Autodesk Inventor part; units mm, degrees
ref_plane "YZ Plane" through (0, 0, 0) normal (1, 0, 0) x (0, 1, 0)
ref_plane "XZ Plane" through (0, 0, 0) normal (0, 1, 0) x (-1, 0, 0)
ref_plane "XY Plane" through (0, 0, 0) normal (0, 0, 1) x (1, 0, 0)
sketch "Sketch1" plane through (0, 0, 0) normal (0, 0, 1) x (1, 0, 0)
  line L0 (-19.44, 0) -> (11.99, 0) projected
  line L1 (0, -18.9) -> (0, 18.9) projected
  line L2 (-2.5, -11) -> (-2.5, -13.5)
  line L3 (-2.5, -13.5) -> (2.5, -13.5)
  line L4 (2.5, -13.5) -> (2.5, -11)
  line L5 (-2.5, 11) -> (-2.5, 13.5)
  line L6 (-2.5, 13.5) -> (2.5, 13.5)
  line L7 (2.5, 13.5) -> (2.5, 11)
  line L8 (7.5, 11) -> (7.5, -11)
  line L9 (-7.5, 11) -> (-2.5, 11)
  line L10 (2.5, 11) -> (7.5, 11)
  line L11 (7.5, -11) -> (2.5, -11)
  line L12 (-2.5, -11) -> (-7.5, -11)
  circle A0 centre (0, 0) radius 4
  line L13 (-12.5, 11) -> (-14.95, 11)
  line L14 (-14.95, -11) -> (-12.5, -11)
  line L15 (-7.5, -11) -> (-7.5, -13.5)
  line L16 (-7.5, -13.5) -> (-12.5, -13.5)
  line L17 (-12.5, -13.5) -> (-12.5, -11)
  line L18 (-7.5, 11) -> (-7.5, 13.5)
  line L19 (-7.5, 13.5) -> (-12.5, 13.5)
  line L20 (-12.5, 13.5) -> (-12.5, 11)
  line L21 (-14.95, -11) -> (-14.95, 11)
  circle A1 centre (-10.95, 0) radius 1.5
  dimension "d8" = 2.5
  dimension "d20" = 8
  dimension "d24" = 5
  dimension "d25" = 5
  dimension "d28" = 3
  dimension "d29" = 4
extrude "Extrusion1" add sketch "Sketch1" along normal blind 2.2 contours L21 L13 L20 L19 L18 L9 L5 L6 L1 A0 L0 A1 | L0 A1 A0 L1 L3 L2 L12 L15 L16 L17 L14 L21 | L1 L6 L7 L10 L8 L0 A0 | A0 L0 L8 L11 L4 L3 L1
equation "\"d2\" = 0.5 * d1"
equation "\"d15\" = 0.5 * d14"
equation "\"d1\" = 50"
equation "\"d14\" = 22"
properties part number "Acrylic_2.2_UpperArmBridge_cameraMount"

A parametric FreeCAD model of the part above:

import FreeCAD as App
import Part
import Sketcher

V = App.Vector


def add_polygon(sketch, points):
    """Adds a closed chain of lines whose ends are joined by coincident constraints."""
    first, n = sketch.GeometryCount, len(points)
    for a, b in zip(points, points[1:] + points[:1]):
        sketch.addGeometry(Part.LineSegment(App.Vector(*a, 0), App.Vector(*b, 0)), False)
    for i in range(n):
        sketch.addConstraint(Sketcher.Constraint("Coincident", first + i, 2, first + (i + 1) % n, 1))

doc = App.newDocument("Part")
params = doc.addObject("Spreadsheet::Sheet", "Params")
for row, (alias, value) in enumerate([
    ("sketch1_diameter", "8 mm"),
    ("sketch1_diameter2", "3 mm"),
    ("sketch1_width", "5 mm"),
    ("sketch1_height", "2.5 mm"),
    ("sketch1_height2", "22 mm"),
    ("pad1_length", "2.2 mm"),
], start=1):
    params.set(f"A{row}", alias)
    params.set(f"B{row}", "=" + value)
    params.setAlias(f"B{row}", alias)

body = doc.addObject("PartDesign::Body", "Body")

# Sketch on XY plane
sketch1 = body.newObject("Sketcher::SketchObject", "Sketch")
sketch1.AttachmentSupport = (doc.getObject("XY_Plane"), [""])
sketch1.MapMode = "FlatFace"
add_polygon(sketch1, [(-14.9, 11), (-14.9, -11), (-12.5, -11), (-12.5, -13.5), (-7.5, -13.5), (-7.5, -11), (-2.5, -11), (-2.5, -13.5), (2.5, -13.5), (2.5, -11), (7.5, -11), (7.5, 11), (2.5, 11), (2.5, 13.5), (-2.5, 13.5), (-2.5, 11), (-7.5, 11), (-7.5, 13.5), (-12.5, 13.5), (-12.5, 11)])  # lines 0-19
sketch1.addGeometry(Part.Circle(V(0, 0, 0), V(0, 0, 1), 4), False)  # 20
sketch1.addGeometry(Part.Circle(V(-10.9, 0, 0), V(0, 0, 1), 1.5), False)  # 21
sketch1.addConstraint([
    Sketcher.Constraint("Vertical", 0),
    Sketcher.Constraint("Horizontal", 1),
    Sketcher.Constraint("Vertical", 2),
    Sketcher.Constraint("Horizontal", 3),
    Sketcher.Constraint("Vertical", 4),
    Sketcher.Constraint("Horizontal", 5),
    Sketcher.Constraint("Vertical", 6),
    Sketcher.Constraint("Horizontal", 7),
    Sketcher.Constraint("Vertical", 8),
    Sketcher.Constraint("Horizontal", 9),
    Sketcher.Constraint("Vertical", 10),
    Sketcher.Constraint("Horizontal", 11),
    Sketcher.Constraint("Vertical", 12),
    Sketcher.Constraint("Horizontal", 13),
    Sketcher.Constraint("Vertical", 14),
    Sketcher.Constraint("Horizontal", 15),
    Sketcher.Constraint("Vertical", 16),
    Sketcher.Constraint("Horizontal", 17),
    Sketcher.Constraint("Vertical", 18),
    Sketcher.Constraint("Horizontal", 19),
    Sketcher.Constraint("Coincident", 20, 3, -1, 1),
    Sketcher.Constraint("Symmetric", 4, 2, 10, 2, -1, 1),
    Sketcher.Constraint("Symmetric", 6, 2, 12, 2, -1, 1),
    Sketcher.Constraint("Symmetric", 8, 2, 14, 2, -1, 1),
    Sketcher.Constraint("Symmetric", 5, 2, 8, 2, -2),
    Sketcher.Constraint("Symmetric", 3, 2, 16, 2, -1),
    Sketcher.Constraint("Symmetric", 1, 2, 18, 2, -1),
    Sketcher.Constraint("PointOnObject", 21, 3, -1),
    Sketcher.Constraint("Horizontal", 1, 2, 4, 2),
    Sketcher.Constraint("Horizontal", 3, 2, 6, 2),
    Sketcher.Constraint("Equal", 3, 5),
    Sketcher.Constraint("Equal", 5, 7),
    Sketcher.Constraint("Diameter", 20, 8.0),
    Sketcher.Constraint("Diameter", 21, 3.0),
    Sketcher.Constraint("DistanceX", 3, 1, 3, 2, 5.0),
    Sketcher.Constraint("DistanceY", 2, 2, 2, 1, 2.5),
    Sketcher.Constraint("DistanceX", 0, 2, 21, 3, 4.0),
    Sketcher.Constraint("DistanceY", 0, 2, 0, 1, 22.0),
    Sketcher.Constraint("DistanceX", 1, 1, 1, 2, 2.45),
])
sketch1.setExpression("Constraints[52]", "Params.sketch1_diameter")
sketch1.setExpression("Constraints[53]", "Params.sketch1_diameter2")
sketch1.setExpression("Constraints[54]", "Params.sketch1_width")
sketch1.setExpression("Constraints[55]", "Params.sketch1_height")
sketch1.setExpression("Constraints[57]", "Params.sketch1_height2")
pad1 = body.newObject("PartDesign::Pad", "Pad")
pad1.Profile = sketch1
pad1.setExpression("Length", "Params.pad1_length")

doc.recompute()
